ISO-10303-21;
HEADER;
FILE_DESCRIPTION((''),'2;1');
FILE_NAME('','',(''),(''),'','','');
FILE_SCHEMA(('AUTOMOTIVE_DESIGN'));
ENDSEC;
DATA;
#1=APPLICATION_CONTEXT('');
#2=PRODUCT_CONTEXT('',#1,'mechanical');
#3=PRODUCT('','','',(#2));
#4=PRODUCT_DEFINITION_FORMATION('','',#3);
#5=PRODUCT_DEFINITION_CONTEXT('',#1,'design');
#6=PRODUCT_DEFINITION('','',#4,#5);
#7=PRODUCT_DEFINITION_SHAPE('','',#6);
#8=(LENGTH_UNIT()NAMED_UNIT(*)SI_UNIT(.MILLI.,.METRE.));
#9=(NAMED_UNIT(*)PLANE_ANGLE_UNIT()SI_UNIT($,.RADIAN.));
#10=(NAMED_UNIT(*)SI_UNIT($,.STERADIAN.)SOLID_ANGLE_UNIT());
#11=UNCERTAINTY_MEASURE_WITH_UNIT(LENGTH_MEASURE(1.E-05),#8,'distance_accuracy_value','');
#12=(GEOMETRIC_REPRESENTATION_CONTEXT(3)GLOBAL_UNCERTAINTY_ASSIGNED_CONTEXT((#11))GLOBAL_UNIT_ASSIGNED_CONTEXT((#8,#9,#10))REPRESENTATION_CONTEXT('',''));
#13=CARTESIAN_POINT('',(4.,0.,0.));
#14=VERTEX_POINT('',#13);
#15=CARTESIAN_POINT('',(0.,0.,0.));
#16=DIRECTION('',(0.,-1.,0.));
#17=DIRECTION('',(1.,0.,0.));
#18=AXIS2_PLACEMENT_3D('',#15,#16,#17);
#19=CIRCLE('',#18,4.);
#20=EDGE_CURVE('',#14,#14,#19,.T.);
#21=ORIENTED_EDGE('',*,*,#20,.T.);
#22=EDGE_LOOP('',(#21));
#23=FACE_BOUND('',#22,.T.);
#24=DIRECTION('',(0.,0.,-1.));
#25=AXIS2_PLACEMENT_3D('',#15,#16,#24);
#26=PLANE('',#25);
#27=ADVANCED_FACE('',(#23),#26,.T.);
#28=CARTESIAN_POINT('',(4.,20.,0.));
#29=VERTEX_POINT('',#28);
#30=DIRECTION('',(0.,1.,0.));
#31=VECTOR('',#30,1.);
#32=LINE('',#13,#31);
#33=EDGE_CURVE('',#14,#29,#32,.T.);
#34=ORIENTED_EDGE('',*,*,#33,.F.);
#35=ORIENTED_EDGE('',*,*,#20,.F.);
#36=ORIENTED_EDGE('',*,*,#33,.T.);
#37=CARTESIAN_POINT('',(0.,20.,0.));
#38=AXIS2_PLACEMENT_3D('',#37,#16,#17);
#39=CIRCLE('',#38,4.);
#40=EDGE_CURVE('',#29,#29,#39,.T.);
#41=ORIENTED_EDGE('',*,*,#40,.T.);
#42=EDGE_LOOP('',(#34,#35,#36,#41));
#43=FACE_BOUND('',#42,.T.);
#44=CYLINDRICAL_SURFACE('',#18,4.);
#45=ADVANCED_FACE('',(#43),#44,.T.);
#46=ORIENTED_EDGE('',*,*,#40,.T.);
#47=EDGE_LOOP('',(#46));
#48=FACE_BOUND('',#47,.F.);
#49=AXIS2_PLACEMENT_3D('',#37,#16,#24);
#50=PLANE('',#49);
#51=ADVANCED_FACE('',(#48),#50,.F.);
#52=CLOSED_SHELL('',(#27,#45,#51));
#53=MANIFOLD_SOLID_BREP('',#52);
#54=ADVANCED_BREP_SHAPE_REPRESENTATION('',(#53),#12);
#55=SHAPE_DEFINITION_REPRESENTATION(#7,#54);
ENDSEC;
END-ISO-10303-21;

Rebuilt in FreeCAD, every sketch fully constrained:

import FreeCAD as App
import Part
import Sketcher
Q = App.Units.Quantity

doc = App.newDocument("Part")
body = doc.addObject("PartDesign::Body", "Body")

sketch1 = doc.addObject("Sketcher::SketchObject", "Sketch")
body.addObject(sketch1)
sketch1.AttachmentSupport = (doc.XZ_Plane, [""])
sketch1.MapMode = "FlatFace"
sketch1.addGeometry(Part.Circle(App.Vector(0, 0, 0), App.Vector(0, 0, 1), 4), False)
sketch1.addConstraint([
    Sketcher.Constraint("Coincident", 0, 3, -1, 1),
    Sketcher.Constraint("Diameter", 0, Q("8 mm")),
])
pad1 = doc.addObject("PartDesign::Pad", "Pad")
body.addObject(pad1)
pad1.Profile = sketch1
pad1.Length = 20
pad1.Reversed = True

doc.recompute()
